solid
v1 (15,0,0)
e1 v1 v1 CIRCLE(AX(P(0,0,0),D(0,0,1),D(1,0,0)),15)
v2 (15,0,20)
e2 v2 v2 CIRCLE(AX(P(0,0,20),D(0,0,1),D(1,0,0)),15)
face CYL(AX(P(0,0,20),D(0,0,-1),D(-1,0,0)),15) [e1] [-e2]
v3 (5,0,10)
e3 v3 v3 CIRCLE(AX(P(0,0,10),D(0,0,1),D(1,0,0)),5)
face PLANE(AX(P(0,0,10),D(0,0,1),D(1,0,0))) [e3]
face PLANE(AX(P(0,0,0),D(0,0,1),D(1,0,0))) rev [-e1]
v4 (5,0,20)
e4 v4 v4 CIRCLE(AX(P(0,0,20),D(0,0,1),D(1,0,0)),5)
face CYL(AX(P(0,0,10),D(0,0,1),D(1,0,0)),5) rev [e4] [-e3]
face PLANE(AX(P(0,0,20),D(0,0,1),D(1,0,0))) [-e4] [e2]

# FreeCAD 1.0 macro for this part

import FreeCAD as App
import Part
import Sketcher
Q = App.Units.Quantity

doc = App.newDocument("Part")
params = doc.addObject("Spreadsheet::Sheet", "Params")
for row, (alias, value) in enumerate([
    ("sketch1_diameter", "30 mm"),
    ("pad1_length", "20 mm"),
    ("sketch2_diameter", "10 mm"),
    ("pocket1_length", "10 mm"),
], start=1):
    params.set(f"A{row}", alias)
    params.set(f"B{row}", "=" + value)
    params.setAlias(f"B{row}", alias)

body = doc.addObject("PartDesign::Body", "Body")

# Sketch on XY plane
sketch1 = body.newObject("Sketcher::SketchObject", "Sketch")
sketch1.AttachmentSupport = (doc.getObject("XY_Plane"), [""])
sketch1.MapMode = "FlatFace"
sketch1.addGeometry(Part.Circle(App.Vector(0, 0, 0), App.Vector(0, 0, 1), 15), False)
sketch1.addConstraint([
    Sketcher.Constraint("Coincident", 0, 3, -1, 1),
    Sketcher.Constraint("Diameter", 0, Q("30 mm")),
])
sketch1.setExpression("Constraints[1]", "Params.sketch1_diameter")
pad1 = body.newObject("PartDesign::Pad", "Pad")
pad1.Profile = sketch1
pad1.setExpression("Length", "Params.pad1_length")

# Sketch on XY plane
sketch2 = body.newObject("Sketcher::SketchObject", "Sketch001")
sketch2.AttachmentSupport = (doc.getObject("XY_Plane"), [""])
sketch2.MapMode = "FlatFace"
sketch2.AttachmentOffset = App.Placement(App.Vector(0, 0, 20), App.Rotation())
sketch2.addGeometry(Part.Circle(App.Vector(0, 0, 0), App.Vector(0, 0, 1), 5), False)
sketch2.addConstraint([
    Sketcher.Constraint("Coincident", 0, 3, -1, 1),
    Sketcher.Constraint("Diameter", 0, Q("10 mm")),
])
sketch2.setExpression("Constraints[1]", "Params.sketch2_diameter")
pocket1 = body.newObject("PartDesign::Pocket", "Pocket")
pocket1.Profile = sketch2
pocket1.setExpression("Length", "Params.pocket1_length")

doc.recompute()
